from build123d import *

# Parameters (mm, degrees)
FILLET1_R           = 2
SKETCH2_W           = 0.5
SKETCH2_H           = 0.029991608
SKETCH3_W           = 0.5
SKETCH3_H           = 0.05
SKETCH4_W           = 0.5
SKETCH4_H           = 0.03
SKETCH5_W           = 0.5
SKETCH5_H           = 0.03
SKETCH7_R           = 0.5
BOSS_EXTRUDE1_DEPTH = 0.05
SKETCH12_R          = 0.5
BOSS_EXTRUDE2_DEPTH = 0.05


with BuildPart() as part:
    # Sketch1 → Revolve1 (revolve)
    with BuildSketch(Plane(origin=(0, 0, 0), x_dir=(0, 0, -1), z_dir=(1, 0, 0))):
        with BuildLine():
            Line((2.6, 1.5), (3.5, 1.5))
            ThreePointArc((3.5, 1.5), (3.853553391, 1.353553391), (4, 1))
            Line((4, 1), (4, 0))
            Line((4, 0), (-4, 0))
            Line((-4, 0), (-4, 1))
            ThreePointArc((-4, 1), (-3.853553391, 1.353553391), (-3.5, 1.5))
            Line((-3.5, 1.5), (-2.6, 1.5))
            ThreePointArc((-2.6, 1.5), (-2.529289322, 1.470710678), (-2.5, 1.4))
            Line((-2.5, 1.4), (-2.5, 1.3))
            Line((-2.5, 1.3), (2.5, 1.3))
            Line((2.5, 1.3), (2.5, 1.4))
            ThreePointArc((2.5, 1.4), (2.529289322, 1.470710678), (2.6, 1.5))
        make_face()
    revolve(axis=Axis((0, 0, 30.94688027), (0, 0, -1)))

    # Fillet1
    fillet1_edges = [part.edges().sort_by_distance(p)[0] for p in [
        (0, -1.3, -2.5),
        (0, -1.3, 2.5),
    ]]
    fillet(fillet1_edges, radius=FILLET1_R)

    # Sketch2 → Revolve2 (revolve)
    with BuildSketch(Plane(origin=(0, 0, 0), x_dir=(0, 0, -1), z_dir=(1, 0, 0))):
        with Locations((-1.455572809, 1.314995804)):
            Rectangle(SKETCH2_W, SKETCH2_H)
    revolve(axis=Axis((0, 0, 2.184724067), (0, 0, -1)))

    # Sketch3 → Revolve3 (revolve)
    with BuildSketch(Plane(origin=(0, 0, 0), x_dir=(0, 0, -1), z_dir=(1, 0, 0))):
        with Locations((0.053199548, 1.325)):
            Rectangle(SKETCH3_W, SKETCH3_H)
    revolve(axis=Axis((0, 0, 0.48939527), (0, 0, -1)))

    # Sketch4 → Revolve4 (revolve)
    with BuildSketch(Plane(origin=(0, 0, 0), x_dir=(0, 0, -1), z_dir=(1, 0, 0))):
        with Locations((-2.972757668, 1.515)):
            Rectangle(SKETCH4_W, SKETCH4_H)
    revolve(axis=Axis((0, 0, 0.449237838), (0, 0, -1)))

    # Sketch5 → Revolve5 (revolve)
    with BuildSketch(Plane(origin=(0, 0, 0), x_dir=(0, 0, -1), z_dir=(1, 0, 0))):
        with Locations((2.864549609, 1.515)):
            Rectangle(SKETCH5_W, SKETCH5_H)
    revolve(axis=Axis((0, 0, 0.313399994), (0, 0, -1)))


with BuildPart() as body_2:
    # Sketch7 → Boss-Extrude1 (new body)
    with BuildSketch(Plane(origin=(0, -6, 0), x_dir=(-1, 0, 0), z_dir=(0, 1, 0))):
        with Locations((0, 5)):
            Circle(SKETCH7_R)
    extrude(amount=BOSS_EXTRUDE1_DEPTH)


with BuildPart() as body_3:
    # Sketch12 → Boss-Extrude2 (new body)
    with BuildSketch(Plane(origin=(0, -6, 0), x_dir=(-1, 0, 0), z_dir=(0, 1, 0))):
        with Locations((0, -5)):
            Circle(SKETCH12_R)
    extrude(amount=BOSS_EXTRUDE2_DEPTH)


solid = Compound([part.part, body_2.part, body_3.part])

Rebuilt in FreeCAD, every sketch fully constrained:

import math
import FreeCAD as App
import Part
import Sketcher

V = App.Vector


def edges_at(feature, points):
    """Names of the edges that pass closest to the given points."""
    edges = feature.Shape.Edges
    near = lambda p: min(range(len(edges)), key=lambda i: edges[i].distToShape(Part.Vertex(*p))[0])
    return sorted({f"Edge{near(p) + 1}" for p in points})

doc = App.newDocument("Part")
body = doc.addObject("PartDesign::Body", "Body")

# Sketch on YZ plane
sketch1 = body.newObject("Sketcher::SketchObject", "Sketch")
sketch1.AttachmentSupport = (doc.getObject("YZ_Plane"), [""])
sketch1.MapMode = "FlatFace"
sketch1.addGeometry([
    Part.LineSegment(V(1.5, -3.5, 0), V(1.5, -2.6, 0)),  # 0
    Part.ArcOfCircle(Part.Circle(V(1.4, -2.6, 0), V(0, 0, 1), 0.1), math.radians(0), math.radians(90)),  # 1
    Part.LineSegment(V(1.4, -2.5, 0), V(1.3, -2.5, 0)),  # 2
    Part.LineSegment(V(1.3, -2.5, 0), V(1.3, 2.5, 0)),  # 3
    Part.LineSegment(V(1.3, 2.5, 0), V(1.4, 2.5, 0)),  # 4
    Part.ArcOfCircle(Part.Circle(V(1.4, 2.6, 0), V(0, 0, 1), 0.1), math.radians(-90), math.radians(0)),  # 5
    Part.LineSegment(V(1.5, 2.6, 0), V(1.5, 3.5, 0)),  # 6
    Part.ArcOfCircle(Part.Circle(V(1, 3.5, 0), V(0, 0, 1), 0.5), math.radians(0), math.radians(90)),  # 7
    Part.LineSegment(V(1, 4, 0), V(0, 4, 0)),  # 8
    Part.LineSegment(V(0, 4, 0), V(0, -4, 0)),  # 9
    Part.LineSegment(V(0, -4, 0), V(1, -4, 0)),  # 10
    Part.ArcOfCircle(Part.Circle(V(1, -3.5, 0), V(0, 0, 1), 0.5), math.radians(-90), math.radians(0)),  # 11
], False)
sketch1.addConstraint([
    Sketcher.Constraint("Tangent", 0, 2, 1, 1),
    Sketcher.Constraint("Tangent", 1, 2, 2, 1),
    Sketcher.Constraint("Coincident", 2, 2, 3, 1),
    Sketcher.Constraint("Coincident", 3, 2, 4, 1),
    Sketcher.Constraint("Tangent", 4, 2, 5, 1),
    Sketcher.Constraint("Tangent", 5, 2, 6, 1),
    Sketcher.Constraint("Tangent", 6, 2, 7, 1),
    Sketcher.Constraint("Tangent", 7, 2, 8, 1),
    Sketcher.Constraint("Coincident", 8, 2, 9, 1),
    Sketcher.Constraint("Coincident", 9, 2, 10, 1),
    Sketcher.Constraint("Tangent", 10, 2, 11, 1),
    Sketcher.Constraint("Tangent", 11, 2, 0, 1),
    Sketcher.Constraint("Vertical", 0),
    Sketcher.Constraint("Horizontal", 2),
    Sketcher.Constraint("Vertical", 3),
    Sketcher.Constraint("Horizontal", 4),
    Sketcher.Constraint("Vertical", 6),
    Sketcher.Constraint("Horizontal", 8),
    Sketcher.Constraint("Vertical", 9),
    Sketcher.Constraint("Horizontal", 10),
    Sketcher.Constraint("Equal", 1, 5),
    Sketcher.Constraint("Equal", 7, 11),
    Sketcher.Constraint("Symmetric", 8, 2, 9, 2, -1, 1),
    Sketcher.Constraint("Symmetric", 1, 3, 5, 3, -1),
    Sketcher.Constraint("Radius", 1, 0.1),
    Sketcher.Constraint("Radius", 7, 0.5),
    Sketcher.Constraint("DistanceX", 8, 2, 8, 1, 1.0),
    Sketcher.Constraint("DistanceY", 3, 1, 3, 2, 5.0),
    Sketcher.Constraint("DistanceY", 9, 2, 9, 1, 8.0),
    Sketcher.Constraint("DistanceX", 2, 2, 2, 1, 0.1),
])
revolution = body.newObject("PartDesign::Revolution", "Revolution")
revolution.Profile = sketch1
revolution.ReferenceAxis = (sketch1, ["V_Axis"])
revolution.Angle = 360
doc.recompute()

fillet = body.newObject("PartDesign::Fillet", "Fillet")
fillet.Base = (revolution, edges_at(revolution, [(0, -1.3, -2.5), (0, -1.3, 2.5)]))
fillet.Radius = 2

# Sketch on YZ plane
sketch2 = body.newObject("Sketcher::SketchObject", "Sketch001")
sketch2.AttachmentSupport = (doc.getObject("YZ_Plane"), [""])
sketch2.MapMode = "FlatFace"
sketch2.addGeometry([
    Part.LineSegment(V(1.329992, 1.705573, 0), V(1.3, 1.705573, 0)),
    Part.LineSegment(V(1.3, 1.705573, 0), V(1.3, 1.205573, 0)),
    Part.LineSegment(V(1.3, 1.205573, 0), V(1.329992, 1.205573, 0)),
    Part.LineSegment(V(1.329992, 1.205573, 0), V(1.329992, 1.705573, 0)),
], False)
sketch2.addConstraint([
    Sketcher.Constraint("Coincident", 0, 2, 1, 1),
    Sketcher.Constraint("Coincident", 1, 2, 2, 1),
    Sketcher.Constraint("Coincident", 2, 2, 3, 1),
    Sketcher.Constraint("Coincident", 3, 2, 0, 1),
    Sketcher.Constraint("Horizontal", 0),
    Sketcher.Constraint("Vertical", 1),
    Sketcher.Constraint("Horizontal", 2),
    Sketcher.Constraint("Vertical", 3),
    Sketcher.Constraint("DistanceY", 1, 2, 1, 1, 0.5),
    Sketcher.Constraint("DistanceX", -1, 1, 0, 2, 1.3),
    Sketcher.Constraint("DistanceX", 0, 2, 0, 1, 0.029992),
    Sketcher.Constraint("DistanceY", -1, 1, 0, 2, 1.705573),
])
revolution2 = body.newObject("PartDesign::Revolution", "Revolution001")
revolution2.Profile = sketch2
revolution2.ReferenceAxis = (sketch2, ["V_Axis"])
revolution2.Angle = 360

# Sketch on YZ plane
sketch3 = body.newObject("Sketcher::SketchObject", "Sketch002")
sketch3.AttachmentSupport = (doc.getObject("YZ_Plane"), [""])
sketch3.MapMode = "FlatFace"
sketch3.addGeometry([
    Part.LineSegment(V(1.35, 0.1968, 0), V(1.3, 0.1968, 0)),
    Part.LineSegment(V(1.3, 0.1968, 0), V(1.3, -0.3032, 0)),
    Part.LineSegment(V(1.3, -0.3032, 0), V(1.35, -0.3032, 0)),
    Part.LineSegment(V(1.35, -0.3032, 0), V(1.35, 0.1968, 0)),
], False)
sketch3.addConstraint([
    Sketcher.Constraint("Coincident", 0, 2, 1, 1),
    Sketcher.Constraint("Coincident", 1, 2, 2, 1),
    Sketcher.Constraint("Coincident", 2, 2, 3, 1),
    Sketcher.Constraint("Coincident", 3, 2, 0, 1),
    Sketcher.Constraint("Horizontal", 0),
    Sketcher.Constraint("Vertical", 1),
    Sketcher.Constraint("Horizontal", 2),
    Sketcher.Constraint("Vertical", 3),
    Sketcher.Constraint("DistanceY", 1, 2, 1, 1, 0.5),
    Sketcher.Constraint("DistanceX", 0, 2, 0, 1, 0.05),
    Sketcher.Constraint("DistanceX", -1, 1, 0, 2, 1.3),
    Sketcher.Constraint("DistanceY", -1, 1, 0, 2, 0.1968),
])
revolution3 = body.newObject("PartDesign::Revolution", "Revolution002")
revolution3.Profile = sketch3
revolution3.ReferenceAxis = (sketch3, ["V_Axis"])
revolution3.Angle = 360

# Sketch on YZ plane
sketch4 = body.newObject("Sketcher::SketchObject", "Sketch003")
sketch4.AttachmentSupport = (doc.getObject("YZ_Plane"), [""])
sketch4.MapMode = "FlatFace"
sketch4.addGeometry([
    Part.LineSegment(V(1.53, 3.222758, 0), V(1.5, 3.222758, 0)),
    Part.LineSegment(V(1.5, 3.222758, 0), V(1.5, 2.722758, 0)),
    Part.LineSegment(V(1.5, 2.722758, 0), V(1.53, 2.722758, 0)),
    Part.LineSegment(V(1.53, 2.722758, 0), V(1.53, 3.222758, 0)),
], False)
sketch4.addConstraint([
    Sketcher.Constraint("Coincident", 0, 2, 1, 1),
    Sketcher.Constraint("Coincident", 1, 2, 2, 1),
    Sketcher.Constraint("Coincident", 2, 2, 3, 1),
    Sketcher.Constraint("Coincident", 3, 2, 0, 1),
    Sketcher.Constraint("Horizontal", 0),
    Sketcher.Constraint("Vertical", 1),
    Sketcher.Constraint("Horizontal", 2),
    Sketcher.Constraint("Vertical", 3),
    Sketcher.Constraint("DistanceY", 1, 2, 1, 1, 0.5),
    Sketcher.Constraint("DistanceX", 0, 2, 0, 1, 0.03),
    Sketcher.Constraint("DistanceX", -1, 1, 0, 2, 1.5),
    Sketcher.Constraint("DistanceY", -1, 1, 0, 2, 3.222758),
])
revolution4 = body.newObject("PartDesign::Revolution", "Revolution003")
revolution4.Profile = sketch4
revolution4.ReferenceAxis = (sketch4, ["V_Axis"])
revolution4.Angle = 360

# Sketch on YZ plane
sketch5 = body.newObject("Sketcher::SketchObject", "Sketch004")
sketch5.AttachmentSupport = (doc.getObject("YZ_Plane"), [""])
sketch5.MapMode = "FlatFace"
sketch5.addGeometry([
    Part.LineSegment(V(1.53, -2.61455, 0), V(1.5, -2.61455, 0)),
    Part.LineSegment(V(1.5, -2.61455, 0), V(1.5, -3.11455, 0)),
    Part.LineSegment(V(1.5, -3.11455, 0), V(1.53, -3.11455, 0)),
    Part.LineSegment(V(1.53, -3.11455, 0), V(1.53, -2.61455, 0)),
], False)
sketch5.addConstraint([
    Sketcher.Constraint("Coincident", 0, 2, 1, 1),
    Sketcher.Constraint("Coincident", 1, 2, 2, 1),
    Sketcher.Constraint("Coincident", 2, 2, 3, 1),
    Sketcher.Constraint("Coincident", 3, 2, 0, 1),
    Sketcher.Constraint("Horizontal", 0),
    Sketcher.Constraint("Vertical", 1),
    Sketcher.Constraint("Horizontal", 2),
    Sketcher.Constraint("Vertical", 3),
    Sketcher.Constraint("DistanceY", 1, 2, 1, 1, 0.5),
    Sketcher.Constraint("DistanceX", 0, 2, 0, 1, 0.03),
    Sketcher.Constraint("DistanceX", -1, 1, 0, 2, 1.5),
    Sketcher.Constraint("DistanceY", 0, 2, -1, 1, 2.61455),
])
revolution5 = body.newObject("PartDesign::Revolution", "Revolution004")
revolution5.Profile = sketch5
revolution5.ReferenceAxis = (sketch5, ["V_Axis"])
revolution5.Angle = 360
body2 = doc.addObject("PartDesign::Body", "Body001")

# Sketch on XZ plane
sketch6 = body2.newObject("Sketcher::SketchObject", "Sketch005")
sketch6.AttachmentSupport = (doc.getObject("XZ_Plane001"), [""])
sketch6.MapMode = "FlatFace"
sketch6.AttachmentOffset = App.Placement(V(0, 0, 6), App.Rotation())
sketch6.addGeometry(Part.Circle(V(0, 5, 0), V(0, 0, 1), 0.5), False)
sketch6.addConstraint([
    Sketcher.Constraint("PointOnObject", 0, 3, -2),
    Sketcher.Constraint("Diameter", 0, 1.0),
    Sketcher.Constraint("DistanceY", -1, 1, 0, 3, 5.0),
])
pad1 = body2.newObject("PartDesign::Pad", "Pad")
pad1.Profile = sketch6
pad1.Length = 0.05
pad1.Reversed = True
body3 = doc.addObject("PartDesign::Body", "Body002")

# Sketch on XZ plane
sketch7 = body3.newObject("Sketcher::SketchObject", "Sketch006")
sketch7.AttachmentSupport = (doc.getObject("XZ_Plane002"), [""])
sketch7.MapMode = "FlatFace"
sketch7.AttachmentOffset = App.Placement(V(0, 0, 6), App.Rotation())
sketch7.addGeometry(Part.Circle(V(0, -5, 0), V(0, 0, 1), 0.5), False)
sketch7.addConstraint([
    Sketcher.Constraint("PointOnObject", 0, 3, -2),
    Sketcher.Constraint("Diameter", 0, 1.0),
    Sketcher.Constraint("DistanceY", 0, 3, -1, 1, 5.0),
])
pad2 = body3.newObject("PartDesign::Pad", "Pad001")
pad2.Profile = sketch7
pad2.Length = 0.05
pad2.Reversed = True

doc.recompute()
